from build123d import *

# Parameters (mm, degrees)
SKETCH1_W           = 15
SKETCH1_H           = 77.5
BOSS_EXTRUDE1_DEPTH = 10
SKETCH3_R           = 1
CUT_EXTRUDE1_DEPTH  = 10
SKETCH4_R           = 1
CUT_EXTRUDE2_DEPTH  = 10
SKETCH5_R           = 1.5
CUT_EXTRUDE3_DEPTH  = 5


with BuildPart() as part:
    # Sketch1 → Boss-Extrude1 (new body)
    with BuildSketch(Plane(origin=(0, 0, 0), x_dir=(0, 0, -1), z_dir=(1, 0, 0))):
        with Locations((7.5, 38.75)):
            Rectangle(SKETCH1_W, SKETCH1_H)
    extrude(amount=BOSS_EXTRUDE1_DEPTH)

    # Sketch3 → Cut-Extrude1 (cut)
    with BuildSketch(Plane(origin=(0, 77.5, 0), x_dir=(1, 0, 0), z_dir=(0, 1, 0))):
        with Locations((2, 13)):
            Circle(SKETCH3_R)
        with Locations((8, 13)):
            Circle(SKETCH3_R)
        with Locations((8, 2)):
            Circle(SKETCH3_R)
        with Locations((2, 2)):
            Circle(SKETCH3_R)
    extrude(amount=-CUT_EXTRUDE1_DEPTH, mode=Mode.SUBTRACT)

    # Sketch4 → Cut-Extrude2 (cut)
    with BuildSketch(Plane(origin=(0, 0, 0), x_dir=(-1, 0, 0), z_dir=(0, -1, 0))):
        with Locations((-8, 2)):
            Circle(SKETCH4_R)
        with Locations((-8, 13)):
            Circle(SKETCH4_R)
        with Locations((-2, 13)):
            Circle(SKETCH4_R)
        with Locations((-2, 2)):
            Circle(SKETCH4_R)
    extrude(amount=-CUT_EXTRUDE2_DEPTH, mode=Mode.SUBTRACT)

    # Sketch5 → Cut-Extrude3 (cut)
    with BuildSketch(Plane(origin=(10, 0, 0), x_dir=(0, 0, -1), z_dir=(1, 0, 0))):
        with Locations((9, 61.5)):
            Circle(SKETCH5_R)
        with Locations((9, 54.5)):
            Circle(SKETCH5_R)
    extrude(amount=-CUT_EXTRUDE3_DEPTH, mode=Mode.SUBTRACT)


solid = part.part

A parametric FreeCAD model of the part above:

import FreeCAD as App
import Part
import Sketcher
from FreeCAD import Vector
Q = App.Units.Quantity

doc = App.newDocument("Part")
body = doc.addObject("PartDesign::Body", "Body")

# Sketch on YZ plane
sketch1 = body.newObject("Sketcher::SketchObject", "Sketch")
sketch1.AttachmentSupport = (doc.getObject("YZ_Plane"), [""])
sketch1.MapMode = "FlatFace"
sketch1.addGeometry([
    Part.LineSegment(Vector(78, 0, 0), Vector(0, 0, 0)),
    Part.LineSegment(Vector(0, 0, 0), Vector(0, -15, 0)),
    Part.LineSegment(Vector(0, -15, 0), Vector(78, -15, 0)),
    Part.LineSegment(Vector(78, -15, 0), Vector(78, 0, 0)),
], False)
sketch1.addConstraint([
    Sketcher.Constraint("Coincident", 0, 2, 1, 1),
    Sketcher.Constraint("Coincident", 1, 2, 2, 1),
    Sketcher.Constraint("Coincident", 2, 2, 3, 1),
    Sketcher.Constraint("Coincident", 3, 2, 0, 1),
    Sketcher.Constraint("Horizontal", 0),
    Sketcher.Constraint("Vertical", 1),
    Sketcher.Constraint("Horizontal", 2),
    Sketcher.Constraint("Vertical", 3),
    Sketcher.Constraint("Coincident", 0, 2, -1, 1),
    Sketcher.Constraint("DistanceY", 1, 2, 1, 1, Q("15 mm")),
    Sketcher.Constraint("DistanceX", 0, 2, 0, 1, Q("77.5 mm")),
])
pad1 = body.newObject("PartDesign::Pad", "Pad")
pad1.Profile = sketch1
pad1.Length = 10

# Sketch on XZ plane
sketch2 = body.newObject("Sketcher::SketchObject", "Sketch001")
sketch2.AttachmentSupport = (doc.getObject("XZ_Plane"), [""])
sketch2.MapMode = "FlatFace"
sketch2.AttachmentOffset = App.Placement(Vector(0, 0, -77.5), App.Rotation())
sketch2.addGeometry([
    Part.Circle(Vector(2, -13, 0), Vector(0, 0, 1), 1),
    Part.Circle(Vector(8, -13, 0), Vector(0, 0, 1), 1),
    Part.Circle(Vector(8, -2, 0), Vector(0, 0, 1), 1),
    Part.Circle(Vector(2, -2, 0), Vector(0, 0, 1), 1),
], False)
sketch2.addConstraint([
    Sketcher.Constraint("Equal", 0, 1),
    Sketcher.Constraint("Equal", 1, 2),
    Sketcher.Constraint("Equal", 2, 3),
    Sketcher.Constraint("Horizontal", 0, 3, 1, 3),
    Sketcher.Constraint("Horizontal", 2, 3, 3, 3),
    Sketcher.Constraint("Vertical", 1, 3, 2, 3),
    Sketcher.Constraint("Vertical", 0, 3, 3, 3),
    Sketcher.Constraint("Diameter", 0, Q("2 mm")),
    Sketcher.Constraint("DistanceX", -1, 1, 0, 3, Q("2 mm")),
    Sketcher.Constraint("DistanceY", 0, 3, -1, 1, Q("13 mm")),
    Sketcher.Constraint("DistanceX", -1, 1, 1, 3, Q("8 mm")),
    Sketcher.Constraint("DistanceY", 2, 3, -1, 1, Q("2 mm")),
])
pocket1 = body.newObject("PartDesign::Pocket", "Pocket")
pocket1.Profile = sketch2
pocket1.Length = 10
pocket1.Reversed = True

# Sketch on XZ plane
sketch3 = body.newObject("Sketcher::SketchObject", "Sketch002")
sketch3.AttachmentSupport = (doc.getObject("XZ_Plane"), [""])
sketch3.MapMode = "FlatFace"
sketch3.addGeometry([
    Part.Circle(Vector(8, -2, 0), Vector(0, 0, 1), 1),
    Part.Circle(Vector(8, -13, 0), Vector(0, 0, 1), 1),
    Part.Circle(Vector(2, -13, 0), Vector(0, 0, 1), 1),
    Part.Circle(Vector(2, -2, 0), Vector(0, 0, 1), 1),
], False)
sketch3.addConstraint([
    Sketcher.Constraint("Equal", 0, 1),
    Sketcher.Constraint("Equal", 1, 2),
    Sketcher.Constraint("Equal", 2, 3),
    Sketcher.Constraint("Horizontal", 1, 3, 2, 3),
    Sketcher.Constraint("Horizontal", 0, 3, 3, 3),
    Sketcher.Constraint("Vertical", 0, 3, 1, 3),
    Sketcher.Constraint("Vertical", 2, 3, 3, 3),
    Sketcher.Constraint("Diameter", 0, Q("2 mm")),
    Sketcher.Constraint("DistanceX", -1, 1, 0, 3, Q("8 mm")),
    Sketcher.Constraint("DistanceY", 0, 3, -1, 1, Q("2 mm")),
    Sketcher.Constraint("DistanceY", 1, 3, -1, 1, Q("13 mm")),
    Sketcher.Constraint("DistanceX", -1, 1, 2, 3, Q("2 mm")),
])
pocket2 = body.newObject("PartDesign::Pocket", "Pocket001")
pocket2.Profile = sketch3
pocket2.Length = 10

# Sketch on YZ plane
sketch4 = body.newObject("Sketcher::SketchObject", "Sketch003")
sketch4.AttachmentSupport = (doc.getObject("YZ_Plane"), [""])
sketch4.MapMode = "FlatFace"
sketch4.AttachmentOffset = App.Placement(Vector(0, 0, 10), App.Rotation())
sketch4.addGeometry([
    Part.Circle(Vector(61.5, -9, 0), Vector(0, 0, 1), 1.5),
    Part.Circle(Vector(54.5, -9, 0), Vector(0, 0, 1), 1.5),
], False)
sketch4.addConstraint([
    Sketcher.Constraint("Equal", 0, 1),
    Sketcher.Constraint("Horizontal", 0, 3, 1, 3),
    Sketcher.Constraint("Diameter", 0, Q("3 mm")),
    Sketcher.Constraint("DistanceY", 0, 3, -1, 1, Q("9 mm")),
    Sketcher.Constraint("DistanceX", 1, 3, 0, 3, Q("7 mm")),
    Sketcher.Constraint("DistanceX", -1, 1, 0, 3, Q("61.5 mm")),
])
pocket3 = body.newObject("PartDesign::Pocket", "Pocket002")
pocket3.Profile = sketch4
pocket3.Length = 5

doc.recompute()
